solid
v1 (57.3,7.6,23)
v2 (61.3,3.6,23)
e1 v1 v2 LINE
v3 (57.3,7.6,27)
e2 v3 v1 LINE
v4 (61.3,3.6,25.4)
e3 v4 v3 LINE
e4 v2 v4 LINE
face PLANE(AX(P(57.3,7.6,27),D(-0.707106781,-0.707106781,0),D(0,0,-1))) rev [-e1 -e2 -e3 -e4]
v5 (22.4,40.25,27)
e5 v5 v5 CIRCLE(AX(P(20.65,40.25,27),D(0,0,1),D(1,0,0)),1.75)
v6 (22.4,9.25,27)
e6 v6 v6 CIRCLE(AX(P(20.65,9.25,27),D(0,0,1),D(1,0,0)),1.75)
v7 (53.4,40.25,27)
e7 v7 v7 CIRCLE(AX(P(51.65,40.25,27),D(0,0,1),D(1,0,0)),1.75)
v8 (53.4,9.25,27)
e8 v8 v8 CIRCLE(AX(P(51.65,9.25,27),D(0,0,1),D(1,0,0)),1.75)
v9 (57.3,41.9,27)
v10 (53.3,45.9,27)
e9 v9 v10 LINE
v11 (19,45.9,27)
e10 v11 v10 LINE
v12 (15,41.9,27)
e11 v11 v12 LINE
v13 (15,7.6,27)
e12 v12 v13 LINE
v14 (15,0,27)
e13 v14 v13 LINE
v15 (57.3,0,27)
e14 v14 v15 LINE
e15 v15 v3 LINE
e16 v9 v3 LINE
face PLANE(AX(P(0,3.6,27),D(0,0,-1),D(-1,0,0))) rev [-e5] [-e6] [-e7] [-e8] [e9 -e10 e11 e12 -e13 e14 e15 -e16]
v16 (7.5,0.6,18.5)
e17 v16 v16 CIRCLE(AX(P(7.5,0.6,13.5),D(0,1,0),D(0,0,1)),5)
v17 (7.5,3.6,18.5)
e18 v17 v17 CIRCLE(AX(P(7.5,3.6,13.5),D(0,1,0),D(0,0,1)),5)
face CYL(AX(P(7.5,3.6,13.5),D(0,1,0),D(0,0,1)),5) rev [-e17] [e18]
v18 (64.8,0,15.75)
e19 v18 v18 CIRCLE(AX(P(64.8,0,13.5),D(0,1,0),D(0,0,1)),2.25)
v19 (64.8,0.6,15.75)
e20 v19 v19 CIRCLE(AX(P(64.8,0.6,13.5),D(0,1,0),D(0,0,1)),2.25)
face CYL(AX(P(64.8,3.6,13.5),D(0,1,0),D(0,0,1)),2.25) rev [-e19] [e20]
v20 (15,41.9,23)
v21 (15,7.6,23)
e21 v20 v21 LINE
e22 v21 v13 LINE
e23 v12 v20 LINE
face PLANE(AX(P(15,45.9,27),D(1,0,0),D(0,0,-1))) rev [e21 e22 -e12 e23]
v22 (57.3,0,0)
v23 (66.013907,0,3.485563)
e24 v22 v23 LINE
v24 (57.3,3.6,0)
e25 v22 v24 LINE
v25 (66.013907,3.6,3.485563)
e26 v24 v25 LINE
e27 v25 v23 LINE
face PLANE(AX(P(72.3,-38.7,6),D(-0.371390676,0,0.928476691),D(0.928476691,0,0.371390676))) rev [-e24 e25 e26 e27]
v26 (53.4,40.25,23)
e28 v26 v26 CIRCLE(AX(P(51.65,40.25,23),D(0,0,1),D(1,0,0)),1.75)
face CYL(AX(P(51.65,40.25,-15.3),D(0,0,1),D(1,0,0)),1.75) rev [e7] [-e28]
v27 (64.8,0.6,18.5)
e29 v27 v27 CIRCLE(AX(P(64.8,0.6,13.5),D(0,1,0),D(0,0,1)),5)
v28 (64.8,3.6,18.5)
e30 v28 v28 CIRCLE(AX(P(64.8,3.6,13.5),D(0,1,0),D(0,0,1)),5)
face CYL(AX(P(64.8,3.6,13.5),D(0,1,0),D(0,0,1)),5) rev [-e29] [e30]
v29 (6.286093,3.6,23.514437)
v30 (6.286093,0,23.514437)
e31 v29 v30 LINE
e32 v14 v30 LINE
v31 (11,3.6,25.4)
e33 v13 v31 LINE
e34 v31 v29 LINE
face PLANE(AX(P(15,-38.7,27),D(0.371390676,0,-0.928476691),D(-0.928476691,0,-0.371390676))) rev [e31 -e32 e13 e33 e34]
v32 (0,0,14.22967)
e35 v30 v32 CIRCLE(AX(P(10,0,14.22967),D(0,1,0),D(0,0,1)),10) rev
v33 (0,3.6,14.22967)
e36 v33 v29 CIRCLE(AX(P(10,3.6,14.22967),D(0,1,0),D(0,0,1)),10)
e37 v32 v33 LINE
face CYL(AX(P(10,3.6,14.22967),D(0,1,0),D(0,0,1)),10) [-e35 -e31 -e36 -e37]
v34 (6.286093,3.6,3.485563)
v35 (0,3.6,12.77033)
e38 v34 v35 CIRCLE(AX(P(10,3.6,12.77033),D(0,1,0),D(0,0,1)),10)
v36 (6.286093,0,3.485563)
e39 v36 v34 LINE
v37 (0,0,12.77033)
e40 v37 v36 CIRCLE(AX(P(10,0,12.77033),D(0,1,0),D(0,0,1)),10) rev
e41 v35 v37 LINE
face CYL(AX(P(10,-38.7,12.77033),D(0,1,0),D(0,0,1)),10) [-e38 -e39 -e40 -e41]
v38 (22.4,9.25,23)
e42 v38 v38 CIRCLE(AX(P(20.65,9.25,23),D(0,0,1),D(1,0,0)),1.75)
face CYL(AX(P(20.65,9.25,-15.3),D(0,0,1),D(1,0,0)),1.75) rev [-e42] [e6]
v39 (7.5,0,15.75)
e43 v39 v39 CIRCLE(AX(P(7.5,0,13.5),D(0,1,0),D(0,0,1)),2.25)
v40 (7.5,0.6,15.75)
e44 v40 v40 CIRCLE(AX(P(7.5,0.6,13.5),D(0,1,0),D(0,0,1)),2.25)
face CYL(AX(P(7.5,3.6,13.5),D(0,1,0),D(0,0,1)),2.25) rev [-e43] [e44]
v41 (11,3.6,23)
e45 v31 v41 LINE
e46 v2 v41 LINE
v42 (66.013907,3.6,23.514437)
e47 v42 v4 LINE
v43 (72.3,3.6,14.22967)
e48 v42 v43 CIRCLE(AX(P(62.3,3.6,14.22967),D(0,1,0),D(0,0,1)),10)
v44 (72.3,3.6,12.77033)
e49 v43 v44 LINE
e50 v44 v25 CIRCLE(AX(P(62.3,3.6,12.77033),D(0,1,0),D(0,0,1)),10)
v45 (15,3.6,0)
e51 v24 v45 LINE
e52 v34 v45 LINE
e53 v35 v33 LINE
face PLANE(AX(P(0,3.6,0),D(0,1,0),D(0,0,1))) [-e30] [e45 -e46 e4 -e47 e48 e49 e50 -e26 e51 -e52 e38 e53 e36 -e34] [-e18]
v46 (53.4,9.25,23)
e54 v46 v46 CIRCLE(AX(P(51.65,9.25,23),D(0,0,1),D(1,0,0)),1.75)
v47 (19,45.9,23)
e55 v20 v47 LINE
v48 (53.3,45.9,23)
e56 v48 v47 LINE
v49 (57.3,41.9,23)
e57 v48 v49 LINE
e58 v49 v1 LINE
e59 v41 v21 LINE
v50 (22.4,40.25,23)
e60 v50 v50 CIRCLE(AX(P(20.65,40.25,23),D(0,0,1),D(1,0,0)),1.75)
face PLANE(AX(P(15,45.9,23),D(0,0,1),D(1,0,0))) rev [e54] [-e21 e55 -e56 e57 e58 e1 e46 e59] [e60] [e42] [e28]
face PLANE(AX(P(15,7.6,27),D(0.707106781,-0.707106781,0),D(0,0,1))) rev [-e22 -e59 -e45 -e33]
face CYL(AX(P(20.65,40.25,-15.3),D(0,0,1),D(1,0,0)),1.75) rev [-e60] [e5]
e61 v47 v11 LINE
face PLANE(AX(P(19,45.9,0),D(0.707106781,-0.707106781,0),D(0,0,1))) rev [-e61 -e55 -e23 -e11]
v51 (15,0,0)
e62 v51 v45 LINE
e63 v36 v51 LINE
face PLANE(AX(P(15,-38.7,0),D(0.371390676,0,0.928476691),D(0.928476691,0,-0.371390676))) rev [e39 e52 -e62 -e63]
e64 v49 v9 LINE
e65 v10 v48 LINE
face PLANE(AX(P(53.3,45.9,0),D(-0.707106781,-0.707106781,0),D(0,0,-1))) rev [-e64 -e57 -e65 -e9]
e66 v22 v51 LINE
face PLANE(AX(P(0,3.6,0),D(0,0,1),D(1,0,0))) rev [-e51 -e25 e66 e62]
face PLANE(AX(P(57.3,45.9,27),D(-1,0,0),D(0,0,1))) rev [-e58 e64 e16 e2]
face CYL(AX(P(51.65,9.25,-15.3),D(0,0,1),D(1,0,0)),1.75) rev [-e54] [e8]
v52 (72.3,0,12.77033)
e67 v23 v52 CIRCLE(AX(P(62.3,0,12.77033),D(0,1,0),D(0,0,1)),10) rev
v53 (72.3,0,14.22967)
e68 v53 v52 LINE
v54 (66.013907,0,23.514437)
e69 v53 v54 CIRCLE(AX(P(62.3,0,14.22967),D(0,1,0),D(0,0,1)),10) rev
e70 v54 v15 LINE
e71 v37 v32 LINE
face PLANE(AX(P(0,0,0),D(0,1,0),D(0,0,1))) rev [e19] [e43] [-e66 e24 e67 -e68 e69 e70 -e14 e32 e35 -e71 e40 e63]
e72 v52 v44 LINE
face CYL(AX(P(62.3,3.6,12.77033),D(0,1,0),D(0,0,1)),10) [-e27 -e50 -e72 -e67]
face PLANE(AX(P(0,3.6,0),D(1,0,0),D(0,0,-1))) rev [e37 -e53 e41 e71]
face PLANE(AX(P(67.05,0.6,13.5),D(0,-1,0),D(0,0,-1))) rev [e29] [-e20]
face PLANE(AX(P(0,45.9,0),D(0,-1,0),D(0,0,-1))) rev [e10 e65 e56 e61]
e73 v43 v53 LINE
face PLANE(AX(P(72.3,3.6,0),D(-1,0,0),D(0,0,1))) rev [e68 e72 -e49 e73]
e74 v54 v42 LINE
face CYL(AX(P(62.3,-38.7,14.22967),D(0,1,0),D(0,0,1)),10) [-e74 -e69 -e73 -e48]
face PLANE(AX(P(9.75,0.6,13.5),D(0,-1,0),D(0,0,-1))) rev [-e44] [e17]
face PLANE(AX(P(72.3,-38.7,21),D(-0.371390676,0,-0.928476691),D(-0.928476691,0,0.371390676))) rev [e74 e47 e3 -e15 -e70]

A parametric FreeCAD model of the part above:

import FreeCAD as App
import Part
import Sketcher

V = App.Vector


def edges_at(feature, points):
    """Names of the edges that pass closest to the given points."""
    edges = feature.Shape.Edges
    near = lambda p: min(range(len(edges)), key=lambda i: edges[i].distToShape(Part.Vertex(*p))[0])
    return sorted({f"Edge{near(p) + 1}" for p in points})


def add_polygon(sketch, points):
    """Adds a closed chain of lines whose ends are joined by coincident constraints."""
    first, n = sketch.GeometryCount, len(points)
    for a, b in zip(points, points[1:] + points[:1]):
        sketch.addGeometry(Part.LineSegment(App.Vector(*a, 0), App.Vector(*b, 0)), False)
    for i in range(n):
        sketch.addConstraint(Sketcher.Constraint("Coincident", first + i, 2, first + (i + 1) % n, 1))

doc = App.newDocument("Part")
body = doc.addObject("PartDesign::Body", "Body")

sketch1 = doc.addObject("Sketcher::SketchObject", "Sketch")
body.addObject(sketch1)
sketch1.AttachmentSupport = (doc.XZ_Plane, [""])
sketch1.MapMode = "FlatFace"
add_polygon(sketch1, [(0, 0), (0, 27), (72, 27), (72, 0)])
sketch1.addConstraint([
    Sketcher.Constraint("Vertical", 0),
    Sketcher.Constraint("Horizontal", 1),
    Sketcher.Constraint("Vertical", 2),
    Sketcher.Constraint("Horizontal", 3),
    Sketcher.Constraint("Coincident", 3, 2, -1, 1),
    Sketcher.Constraint("DistanceY", 0, 1, 0, 2, 27.0),
    Sketcher.Constraint("DistanceX", 1, 1, 1, 2, 72.3),
])
pad1 = doc.addObject("PartDesign::Pad", "Pad")
body.addObject(pad1)
pad1.Profile = sketch1
pad1.Length = 3.6
pad1.Reversed = True

sketch2 = doc.addObject("Sketcher::SketchObject", "Sketch001")
body.addObject(sketch2)
sketch2.AttachmentSupport = (doc.XZ_Plane, [""])
sketch2.MapMode = "FlatFace"
sketch2.AttachmentOffset = App.Placement(V(0, 0, -3.6), App.Rotation())
add_polygon(sketch2, [(15, 23), (15, 27), (57.3, 27), (57.3, 23)])
sketch2.addConstraint([
    Sketcher.Constraint("Vertical", 0),
    Sketcher.Constraint("Horizontal", 1),
    Sketcher.Constraint("Vertical", 2),
    Sketcher.Constraint("Horizontal", 3),
    Sketcher.Constraint("DistanceY", 0, 1, 0, 2, 4.0),
    Sketcher.Constraint("DistanceX", 1, 1, 1, 2, 42.3),
    Sketcher.Constraint("DistanceX", -1, 1, 0, 2, 15.0),
    Sketcher.Constraint("DistanceY", -1, 1, 0, 2, 27.0),
])
pad2 = doc.addObject("PartDesign::Pad", "Pad001")
body.addObject(pad2)
pad2.Profile = sketch2
pad2.Length = 42.3
pad2.Reversed = True

sketch3 = doc.addObject("Sketcher::SketchObject", "Sketch002")
body.addObject(sketch3)
sketch3.AttachmentSupport = (doc.XY_Plane, [""])
sketch3.MapMode = "FlatFace"
sketch3.AttachmentOffset = App.Placement(V(0, 0, 27), App.Rotation())
sketch3.addGeometry([
    Part.Circle(V(20.6, 40.2, 0), V(0, 0, 1), 1.8),
    Part.Circle(V(51.6, 40.2, 0), V(0, 0, 1), 1.8),
    Part.Circle(V(51.6, 9.2, 0), V(0, 0, 1), 1.8),
    Part.Circle(V(20.6, 9.2, 0), V(0, 0, 1), 1.8),
], False)
sketch3.addConstraint([
    Sketcher.Constraint("Equal", 0, 1),
    Sketcher.Constraint("Equal", 1, 2),
    Sketcher.Constraint("Equal", 2, 3),
    Sketcher.Constraint("Horizontal", 0, 3, 1, 3),
    Sketcher.Constraint("Horizontal", 2, 3, 3, 3),
    Sketcher.Constraint("Vertical", 1, 3, 2, 3),
    Sketcher.Constraint("Vertical", 0, 3, 3, 3),
    Sketcher.Constraint("Diameter", 0, 3.5),
    Sketcher.Constraint("DistanceX", 0, 3, 1, 3, 31.0),
    Sketcher.Constraint("DistanceY", 2, 3, 1, 3, 31.0),
    Sketcher.Constraint("DistanceX", -1, 1, 0, 3, 20.65),
    Sketcher.Constraint("DistanceY", -1, 1, 0, 3, 40.25),
])
pocket1 = doc.addObject("PartDesign::Pocket", "Pocket")
body.addObject(pocket1)
pocket1.Profile = sketch3
pocket1.Length = 42.3

sketch4 = doc.addObject("Sketcher::SketchObject", "Sketch003")
body.addObject(sketch4)
sketch4.AttachmentSupport = (doc.XZ_Plane, [""])
sketch4.MapMode = "FlatFace"
sketch4.AttachmentOffset = App.Placement(V(0, 0, -3.6), App.Rotation())
sketch4.addGeometry([
    Part.Circle(V(7.5, 13.5, 0), V(0, 0, 1), 2.2),
    Part.Circle(V(64.8, 13.5, 0), V(0, 0, 1), 2.2),
], False)
sketch4.addConstraint([
    Sketcher.Constraint("Equal", 0, 1),
    Sketcher.Constraint("Horizontal", 0, 3, 1, 3),
    Sketcher.Constraint("Diameter", 0, 4.5),
    Sketcher.Constraint("DistanceX", -1, 1, 0, 3, 7.5),
    Sketcher.Constraint("DistanceY", -1, 1, 0, 3, 13.5),
    Sketcher.Constraint("DistanceX", -1, 1, 1, 3, 64.8),
])
doc.recompute()
hole = doc.addObject("PartDesign::Hole", "Hole")
body.addObject(hole)
hole.Profile = sketch4
hole.ThreadType = "None"
hole.Diameter = 4.5
hole.DepthType = "Dimension"
hole.Depth = 9
hole.DrillPoint = "Angled"
hole.DrillPointAngle = 118
hole.HoleCutType = "Counterbore"
hole.HoleCutDiameter = 10
hole.HoleCutDepth = 3
hole.Reversed = True

sketch5 = doc.addObject("Sketcher::SketchObject", "Sketch004")
body.addObject(sketch5)
sketch5.AttachmentSupport = (doc.XZ_Plane, [""])
sketch5.MapMode = "FlatFace"
sketch5.AttachmentOffset = App.Placement(V(0, 0, -3.6), App.Rotation())
add_polygon(sketch5, [(15, 27), (0, 21), (0, 27)])
add_polygon(sketch5, [(0, 0), (0, 6), (15, 0)])
add_polygon(sketch5, [(72, 0), (57, 0), (72, 6)])
add_polygon(sketch5, [(57, 27), (72, 27), (72, 21)])
sketch5.addConstraint([
    Sketcher.Constraint("Vertical", 1),
    Sketcher.Constraint("Horizontal", 2),
    Sketcher.Constraint("Vertical", 3),
    Sketcher.Constraint("Horizontal", 5),
    Sketcher.Constraint("Horizontal", 6),
    Sketcher.Constraint("Vertical", 8),
    Sketcher.Constraint("Horizontal", 9),
    Sketcher.Constraint("Vertical", 10),
    Sketcher.Constraint("Coincident", 5, 2, -1, 1),
    Sketcher.Constraint("PointOnObject", 0, 2, -2),
    Sketcher.Constraint("PointOnObject", 6, 2, -1),
    Sketcher.Constraint("Parallel", 0, 7),
    Sketcher.Constraint("Parallel", 4, 11),
    Sketcher.Constraint("Horizontal", 3, 2, 7, 2),
    Sketcher.Constraint("Horizontal", 2, 2, 9, 2),
    Sketcher.Constraint("Horizontal", 0, 2, 10, 2),
    Sketcher.Constraint("Vertical", 2, 2, 4, 2),
    Sketcher.Constraint("Vertical", 8, 2, 9, 2),
    Sketcher.Constraint("Vertical", 6, 2, 11, 2),
    Sketcher.Constraint("DistanceX", 2, 1, 2, 2, 15.0),
    Sketcher.Constraint("DistanceY", 1, 1, 1, 2, 6.0),
    Sketcher.Constraint("DistanceY", -1, 1, 0, 2, 21.0),
    Sketcher.Constraint("DistanceX", -1, 1, 6, 2, 57.3),
])
pocket2 = doc.addObject("PartDesign::Pocket", "Pocket001")
body.addObject(pocket2)
pocket2.Profile = sketch5
pocket2.Length = 42.3
pocket2.Reversed = True
doc.recompute()

chamfer = doc.addObject("PartDesign::Chamfer", "Chamfer")
body.addObject(chamfer)
chamfer.Base = (pocket2, edges_at(pocket2, [(15, 45.9, 25), (57.3, 45.9, 25)]))
chamfer.Size = 4
doc.recompute()

fillet = doc.addObject("PartDesign::Fillet", "Fillet")
body.addObject(fillet)
fillet.Base = (chamfer, edges_at(chamfer, [
    (0, 1.8, 21),
    (72.3, 1.8, 21),
    (72.3, 1.8, 6),
    (0, 1.8, 6),
]))
fillet.Radius = 10
doc.recompute()

chamfer2 = doc.addObject("PartDesign::Chamfer", "Chamfer001")
body.addObject(chamfer2)
chamfer2.Base = (fillet, edges_at(fillet, [(15, 3.6, 25), (57.3, 3.6, 25)]))
chamfer2.Size = 4

doc.recompute()
